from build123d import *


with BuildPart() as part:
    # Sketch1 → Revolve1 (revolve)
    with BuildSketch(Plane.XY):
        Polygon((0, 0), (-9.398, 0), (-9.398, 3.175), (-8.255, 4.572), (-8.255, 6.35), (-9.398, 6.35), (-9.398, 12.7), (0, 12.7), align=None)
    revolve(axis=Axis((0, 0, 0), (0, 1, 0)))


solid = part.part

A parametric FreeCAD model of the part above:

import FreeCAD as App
import Part
import Sketcher
from FreeCAD import Vector
Q = App.Units.Quantity

doc = App.newDocument("Part")
body = doc.addObject("PartDesign::Body", "Body")

sketch1 = doc.addObject("Sketcher::SketchObject", "Sketch")
body.addObject(sketch1)
sketch1.AttachmentSupport = (doc.XY_Plane, [""])
sketch1.MapMode = "FlatFace"
sketch1.addGeometry(Part.LineSegment(Vector(-9.4, 0, 0), Vector(0, 0, 0)), False)
sketch1.addGeometry(Part.LineSegment(Vector(0, 0, 0), Vector(0, 12.7, 0)), False)
sketch1.addGeometry(Part.LineSegment(Vector(0, 12.7, 0), Vector(-9.4, 12.7, 0)), False)
sketch1.addGeometry(Part.LineSegment(Vector(-9.4, 12.7, 0), Vector(-9.4, 6.3, 0)), False)
sketch1.addGeometry(Part.LineSegment(Vector(-9.4, 6.3, 0), Vector(-8.3, 6.3, 0)), False)
sketch1.addGeometry(Part.LineSegment(Vector(-8.3, 6.3, 0), Vector(-8.3, 4.6, 0)), False)
sketch1.addGeometry(Part.LineSegment(Vector(-8.3, 4.6, 0), Vector(-9.4, 3.2, 0)), False)
sketch1.addGeometry(Part.LineSegment(Vector(-9.4, 3.2, 0), Vector(-9.4, 0, 0)), False)
sketch1.addConstraint(Sketcher.Constraint("Coincident", 0, 2, 1, 1))
sketch1.addConstraint(Sketcher.Constraint("Coincident", 1, 2, 2, 1))
sketch1.addConstraint(Sketcher.Constraint("Coincident", 2, 2, 3, 1))
sketch1.addConstraint(Sketcher.Constraint("Coincident", 3, 2, 4, 1))
sketch1.addConstraint(Sketcher.Constraint("Coincident", 4, 2, 5, 1))
sketch1.addConstraint(Sketcher.Constraint("Coincident", 5, 2, 6, 1))
sketch1.addConstraint(Sketcher.Constraint("Coincident", 6, 2, 7, 1))
sketch1.addConstraint(Sketcher.Constraint("Coincident", 7, 2, 0, 1))
sketch1.addConstraint(Sketcher.Constraint("Horizontal", 0))
sketch1.addConstraint(Sketcher.Constraint("Vertical", 1))
sketch1.addConstraint(Sketcher.Constraint("Horizontal", 2))
sketch1.addConstraint(Sketcher.Constraint("Vertical", 3))
sketch1.addConstraint(Sketcher.Constraint("Horizontal", 4))
sketch1.addConstraint(Sketcher.Constraint("Vertical", 5))
sketch1.addConstraint(Sketcher.Constraint("Vertical", 7))
sketch1.addConstraint(Sketcher.Constraint("Coincident", 0, 2, -1, 1))
sketch1.addConstraint(Sketcher.Constraint("Vertical", 3, 2, 6, 2))
sketch1.addConstraint(Sketcher.Constraint("DistanceY", 1, 1, 1, 2, Q("0.5 in")))
sketch1.addConstraint(Sketcher.Constraint("DistanceX", 0, 1, 0, 2, Q("0.37 in")))
sketch1.addConstraint(Sketcher.Constraint("DistanceY", 3, 2, 3, 1, Q("0.25 in")))
sketch1.addConstraint(Sketcher.Constraint("DistanceY", 5, 2, 5, 1, Q("0.07 in")))
sketch1.addConstraint(Sketcher.Constraint("DistanceX", 4, 1, 4, 2, Q("0.045 in")))
sketch1.addConstraint(Sketcher.Constraint("DistanceY", 7, 2, 7, 1, Q("0.125 in")))
revolution = doc.addObject("PartDesign::Revolution", "Revolution")
body.addObject(revolution)
revolution.Profile = sketch1
revolution.ReferenceAxis = (sketch1, ["V_Axis"])
revolution.Angle = 360

doc.recompute()
